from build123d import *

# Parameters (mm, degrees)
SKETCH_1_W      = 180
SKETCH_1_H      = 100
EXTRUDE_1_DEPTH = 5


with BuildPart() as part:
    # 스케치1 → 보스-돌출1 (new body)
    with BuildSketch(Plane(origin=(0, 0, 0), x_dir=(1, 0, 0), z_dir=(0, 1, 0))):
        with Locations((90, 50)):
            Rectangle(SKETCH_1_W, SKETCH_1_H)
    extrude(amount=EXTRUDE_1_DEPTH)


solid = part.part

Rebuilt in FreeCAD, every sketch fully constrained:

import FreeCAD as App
import Part
import Sketcher

V = App.Vector
Q = App.Units.Quantity

doc = App.newDocument("Part")
body = doc.addObject("PartDesign::Body", "Body")

# Sketch on XZ plane
sketch1 = body.newObject("Sketcher::SketchObject", "Sketch")
sketch1.AttachmentSupport = (doc.getObject("XZ_Plane"), [""])
sketch1.MapMode = "FlatFace"
sketch1.addGeometry(Part.LineSegment(V(0, -100, 0), V(0, 0, 0)), False)
sketch1.addGeometry(Part.LineSegment(V(0, 0, 0), V(180, 0, 0)), False)
sketch1.addGeometry(Part.LineSegment(V(180, 0, 0), V(180, -100, 0)), False)
sketch1.addGeometry(Part.LineSegment(V(180, -100, 0), V(0, -100, 0)), False)
sketch1.addConstraint(Sketcher.Constraint("Coincident", 0, 2, 1, 1))
sketch1.addConstraint(Sketcher.Constraint("Coincident", 1, 2, 2, 1))
sketch1.addConstraint(Sketcher.Constraint("Coincident", 2, 2, 3, 1))
sketch1.addConstraint(Sketcher.Constraint("Coincident", 3, 2, 0, 1))
sketch1.addConstraint(Sketcher.Constraint("Vertical", 0))
sketch1.addConstraint(Sketcher.Constraint("Horizontal", 1))
sketch1.addConstraint(Sketcher.Constraint("Vertical", 2))
sketch1.addConstraint(Sketcher.Constraint("Horizontal", 3))
sketch1.addConstraint(Sketcher.Constraint("Coincident", 0, 2, -1, 1))
sketch1.addConstraint(Sketcher.Constraint("DistanceX", 1, 1, 1, 2, Q("180 mm")))
sketch1.addConstraint(Sketcher.Constraint("DistanceY", 0, 1, 0, 2, Q("100 mm")))
pad1 = body.newObject("PartDesign::Pad", "Pad")
pad1.Profile = sketch1
pad1.Length = 5
pad1.Reversed = True

doc.recompute()
